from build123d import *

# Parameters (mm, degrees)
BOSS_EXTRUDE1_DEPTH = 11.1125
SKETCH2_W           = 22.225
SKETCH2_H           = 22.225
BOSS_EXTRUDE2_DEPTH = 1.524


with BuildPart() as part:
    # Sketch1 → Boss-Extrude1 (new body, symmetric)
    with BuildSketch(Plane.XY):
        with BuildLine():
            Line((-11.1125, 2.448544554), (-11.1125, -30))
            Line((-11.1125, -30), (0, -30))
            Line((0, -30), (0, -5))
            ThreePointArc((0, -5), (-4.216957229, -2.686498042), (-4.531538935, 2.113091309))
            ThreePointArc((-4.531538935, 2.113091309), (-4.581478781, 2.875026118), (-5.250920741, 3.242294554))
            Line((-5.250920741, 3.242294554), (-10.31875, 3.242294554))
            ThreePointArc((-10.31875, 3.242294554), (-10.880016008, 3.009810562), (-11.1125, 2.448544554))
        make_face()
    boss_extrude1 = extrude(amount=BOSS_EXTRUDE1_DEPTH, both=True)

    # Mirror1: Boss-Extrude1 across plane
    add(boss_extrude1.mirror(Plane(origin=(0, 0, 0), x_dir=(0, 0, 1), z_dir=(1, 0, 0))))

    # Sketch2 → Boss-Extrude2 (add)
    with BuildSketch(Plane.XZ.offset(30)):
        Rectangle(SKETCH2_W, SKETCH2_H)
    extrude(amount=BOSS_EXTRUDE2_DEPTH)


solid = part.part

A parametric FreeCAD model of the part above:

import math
import FreeCAD as App
import Part
import Sketcher
Q = App.Units.Quantity


def add_polygon(sketch, points):
    """Adds a closed chain of lines whose ends are joined by coincident constraints."""
    first, n = sketch.GeometryCount, len(points)
    for a, b in zip(points, points[1:] + points[:1]):
        sketch.addGeometry(Part.LineSegment(App.Vector(*a, 0), App.Vector(*b, 0)), False)
    for i in range(n):
        sketch.addConstraint(Sketcher.Constraint("Coincident", first + i, 2, first + (i + 1) % n, 1))

doc = App.newDocument("Part")
body = doc.addObject("PartDesign::Body", "Body")

# Sketch on XY plane
sketch1 = body.newObject("Sketcher::SketchObject", "Sketch")
sketch1.AttachmentSupport = (doc.getObject("XY_Plane"), [""])
sketch1.MapMode = "FlatFace"
sketch1.addGeometry([
    Part.LineSegment(App.Vector(-11.1, 2.4, 0), App.Vector(-11.1, -30, 0)),  # 0
    Part.LineSegment(App.Vector(-11.1, -30, 0), App.Vector(0, -30, 0)),  # 1
    Part.LineSegment(App.Vector(0, -30, 0), App.Vector(0, -5, 0)),  # 2
    Part.ArcOfCircle(Part.Circle(App.Vector(0, 0, 0), App.Vector(0, 0, 1), 5), math.radians(155), math.radians(270)),  # 3
    Part.ArcOfCircle(Part.Circle(App.Vector(-5.3, 2.4, 0), App.Vector(0, 0, 1), 0.8), math.radians(-25), math.radians(90)),  # 4
    Part.LineSegment(App.Vector(-5.3, 3.2, 0), App.Vector(-10.3, 3.2, 0)),  # 5
    Part.ArcOfCircle(Part.Circle(App.Vector(-10.3, 2.4, 0), App.Vector(0, 0, 1), 0.8), math.radians(90), math.radians(180)),  # 6
], False)
sketch1.addConstraint([
    Sketcher.Constraint("Coincident", 0, 2, 1, 1),
    Sketcher.Constraint("Coincident", 1, 2, 2, 1),
    Sketcher.Constraint("Coincident", 2, 2, 3, 2),
    Sketcher.Constraint("Tangent", 3, 1, 4, 1),
    Sketcher.Constraint("Tangent", 4, 2, 5, 1),
    Sketcher.Constraint("Tangent", 5, 2, 6, 1),
    Sketcher.Constraint("Tangent", 6, 2, 0, 1),
    Sketcher.Constraint("Vertical", 0),
    Sketcher.Constraint("Horizontal", 1),
    Sketcher.Constraint("Vertical", 2),
    Sketcher.Constraint("Horizontal", 5),
    Sketcher.Constraint("Coincident", 3, 3, -1, 1),
    Sketcher.Constraint("Equal", 4, 6),
    Sketcher.Constraint("PointOnObject", 1, 2, -2),
    Sketcher.Constraint("Radius", 4, Q("0.03125 in")),
    Sketcher.Constraint("DistanceX", 1, 1, 1, 2, Q("0.4375 in")),
    Sketcher.Constraint("Radius", 3, Q("5 mm")),
    Sketcher.Constraint("DistanceY", 2, 1, 2, 2, Q("25 mm")),
    Sketcher.Constraint("DistanceX", 5, 2, 5, 1, Q("5.067829 mm")),
])
pad1 = body.newObject("PartDesign::Pad", "Pad")
pad1.Profile = sketch1
pad1.Length = Q("0.875 in")
pad1.Midplane = True
doc.recompute()

mirrored = body.newObject("PartDesign::Mirrored", "Mirrored")
mirrored.Originals = [pad1]
mirrored.MirrorPlane = (doc.getObject("YZ_Plane"), [""])
body.Tip = mirrored

# Sketch on XZ plane
sketch2 = body.newObject("Sketcher::SketchObject", "Sketch001")
sketch2.AttachmentSupport = (doc.getObject("XZ_Plane"), [""])
sketch2.MapMode = "FlatFace"
sketch2.AttachmentOffset = App.Placement(App.Vector(0, 0, 30), App.Rotation())
add_polygon(sketch2, [(-11, 11), (-11, -11), (11, -11), (11, 11)])  # lines 0-3
sketch2.addConstraint([
    Sketcher.Constraint("Vertical", 0),
    Sketcher.Constraint("Horizontal", 1),
    Sketcher.Constraint("Vertical", 2),
    Sketcher.Constraint("Horizontal", 3),
    Sketcher.Constraint("Symmetric", 0, 2, 2, 2, -1, 1),
    Sketcher.Constraint("Equal", 3, 0),
    Sketcher.Constraint("DistanceX", 1, 1, 1, 2, Q("0.875 in")),
])
pad2 = body.newObject("PartDesign::Pad", "Pad001")
pad2.Profile = sketch2
pad2.Length = Q("0.06 in")

doc.recompute()
